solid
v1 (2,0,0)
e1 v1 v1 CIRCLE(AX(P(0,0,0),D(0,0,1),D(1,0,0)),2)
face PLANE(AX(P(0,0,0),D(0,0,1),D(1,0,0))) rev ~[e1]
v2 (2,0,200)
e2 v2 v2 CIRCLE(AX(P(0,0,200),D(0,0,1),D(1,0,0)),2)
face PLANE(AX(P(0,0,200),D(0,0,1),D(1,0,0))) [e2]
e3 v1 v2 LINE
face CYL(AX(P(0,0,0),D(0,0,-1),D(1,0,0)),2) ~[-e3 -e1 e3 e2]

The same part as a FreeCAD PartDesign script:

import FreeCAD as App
import Part
import Sketcher

V = App.Vector

doc = App.newDocument("Part")
params = doc.addObject("Spreadsheet::Sheet", "Params")
for row, (alias, value) in enumerate([
    ("sketch1_diameter", "4 mm"),
    ("pad1_length", "200 mm"),
], start=1):
    params.set(f"A{row}", alias)
    params.set(f"B{row}", "=" + value)
    params.setAlias(f"B{row}", alias)

body = doc.addObject("PartDesign::Body", "Body")

# Sketch on XY plane
sketch1 = body.newObject("Sketcher::SketchObject", "Sketch")
sketch1.AttachmentSupport = (doc.getObject("XY_Plane"), [""])
sketch1.MapMode = "FlatFace"
sketch1.addGeometry(Part.Circle(V(0, 0, 0), V(0, 0, 1), 2), False)
sketch1.addConstraint([
    Sketcher.Constraint("Coincident", 0, 3, -1, 1),
    Sketcher.Constraint("Diameter", 0, 4.0),
])
sketch1.setExpression("Constraints[1]", "Params.sketch1_diameter")
pad1 = body.newObject("PartDesign::Pad", "Pad")
pad1.Profile = sketch1
pad1.setExpression("Length", "Params.pad1_length")

doc.recompute()
